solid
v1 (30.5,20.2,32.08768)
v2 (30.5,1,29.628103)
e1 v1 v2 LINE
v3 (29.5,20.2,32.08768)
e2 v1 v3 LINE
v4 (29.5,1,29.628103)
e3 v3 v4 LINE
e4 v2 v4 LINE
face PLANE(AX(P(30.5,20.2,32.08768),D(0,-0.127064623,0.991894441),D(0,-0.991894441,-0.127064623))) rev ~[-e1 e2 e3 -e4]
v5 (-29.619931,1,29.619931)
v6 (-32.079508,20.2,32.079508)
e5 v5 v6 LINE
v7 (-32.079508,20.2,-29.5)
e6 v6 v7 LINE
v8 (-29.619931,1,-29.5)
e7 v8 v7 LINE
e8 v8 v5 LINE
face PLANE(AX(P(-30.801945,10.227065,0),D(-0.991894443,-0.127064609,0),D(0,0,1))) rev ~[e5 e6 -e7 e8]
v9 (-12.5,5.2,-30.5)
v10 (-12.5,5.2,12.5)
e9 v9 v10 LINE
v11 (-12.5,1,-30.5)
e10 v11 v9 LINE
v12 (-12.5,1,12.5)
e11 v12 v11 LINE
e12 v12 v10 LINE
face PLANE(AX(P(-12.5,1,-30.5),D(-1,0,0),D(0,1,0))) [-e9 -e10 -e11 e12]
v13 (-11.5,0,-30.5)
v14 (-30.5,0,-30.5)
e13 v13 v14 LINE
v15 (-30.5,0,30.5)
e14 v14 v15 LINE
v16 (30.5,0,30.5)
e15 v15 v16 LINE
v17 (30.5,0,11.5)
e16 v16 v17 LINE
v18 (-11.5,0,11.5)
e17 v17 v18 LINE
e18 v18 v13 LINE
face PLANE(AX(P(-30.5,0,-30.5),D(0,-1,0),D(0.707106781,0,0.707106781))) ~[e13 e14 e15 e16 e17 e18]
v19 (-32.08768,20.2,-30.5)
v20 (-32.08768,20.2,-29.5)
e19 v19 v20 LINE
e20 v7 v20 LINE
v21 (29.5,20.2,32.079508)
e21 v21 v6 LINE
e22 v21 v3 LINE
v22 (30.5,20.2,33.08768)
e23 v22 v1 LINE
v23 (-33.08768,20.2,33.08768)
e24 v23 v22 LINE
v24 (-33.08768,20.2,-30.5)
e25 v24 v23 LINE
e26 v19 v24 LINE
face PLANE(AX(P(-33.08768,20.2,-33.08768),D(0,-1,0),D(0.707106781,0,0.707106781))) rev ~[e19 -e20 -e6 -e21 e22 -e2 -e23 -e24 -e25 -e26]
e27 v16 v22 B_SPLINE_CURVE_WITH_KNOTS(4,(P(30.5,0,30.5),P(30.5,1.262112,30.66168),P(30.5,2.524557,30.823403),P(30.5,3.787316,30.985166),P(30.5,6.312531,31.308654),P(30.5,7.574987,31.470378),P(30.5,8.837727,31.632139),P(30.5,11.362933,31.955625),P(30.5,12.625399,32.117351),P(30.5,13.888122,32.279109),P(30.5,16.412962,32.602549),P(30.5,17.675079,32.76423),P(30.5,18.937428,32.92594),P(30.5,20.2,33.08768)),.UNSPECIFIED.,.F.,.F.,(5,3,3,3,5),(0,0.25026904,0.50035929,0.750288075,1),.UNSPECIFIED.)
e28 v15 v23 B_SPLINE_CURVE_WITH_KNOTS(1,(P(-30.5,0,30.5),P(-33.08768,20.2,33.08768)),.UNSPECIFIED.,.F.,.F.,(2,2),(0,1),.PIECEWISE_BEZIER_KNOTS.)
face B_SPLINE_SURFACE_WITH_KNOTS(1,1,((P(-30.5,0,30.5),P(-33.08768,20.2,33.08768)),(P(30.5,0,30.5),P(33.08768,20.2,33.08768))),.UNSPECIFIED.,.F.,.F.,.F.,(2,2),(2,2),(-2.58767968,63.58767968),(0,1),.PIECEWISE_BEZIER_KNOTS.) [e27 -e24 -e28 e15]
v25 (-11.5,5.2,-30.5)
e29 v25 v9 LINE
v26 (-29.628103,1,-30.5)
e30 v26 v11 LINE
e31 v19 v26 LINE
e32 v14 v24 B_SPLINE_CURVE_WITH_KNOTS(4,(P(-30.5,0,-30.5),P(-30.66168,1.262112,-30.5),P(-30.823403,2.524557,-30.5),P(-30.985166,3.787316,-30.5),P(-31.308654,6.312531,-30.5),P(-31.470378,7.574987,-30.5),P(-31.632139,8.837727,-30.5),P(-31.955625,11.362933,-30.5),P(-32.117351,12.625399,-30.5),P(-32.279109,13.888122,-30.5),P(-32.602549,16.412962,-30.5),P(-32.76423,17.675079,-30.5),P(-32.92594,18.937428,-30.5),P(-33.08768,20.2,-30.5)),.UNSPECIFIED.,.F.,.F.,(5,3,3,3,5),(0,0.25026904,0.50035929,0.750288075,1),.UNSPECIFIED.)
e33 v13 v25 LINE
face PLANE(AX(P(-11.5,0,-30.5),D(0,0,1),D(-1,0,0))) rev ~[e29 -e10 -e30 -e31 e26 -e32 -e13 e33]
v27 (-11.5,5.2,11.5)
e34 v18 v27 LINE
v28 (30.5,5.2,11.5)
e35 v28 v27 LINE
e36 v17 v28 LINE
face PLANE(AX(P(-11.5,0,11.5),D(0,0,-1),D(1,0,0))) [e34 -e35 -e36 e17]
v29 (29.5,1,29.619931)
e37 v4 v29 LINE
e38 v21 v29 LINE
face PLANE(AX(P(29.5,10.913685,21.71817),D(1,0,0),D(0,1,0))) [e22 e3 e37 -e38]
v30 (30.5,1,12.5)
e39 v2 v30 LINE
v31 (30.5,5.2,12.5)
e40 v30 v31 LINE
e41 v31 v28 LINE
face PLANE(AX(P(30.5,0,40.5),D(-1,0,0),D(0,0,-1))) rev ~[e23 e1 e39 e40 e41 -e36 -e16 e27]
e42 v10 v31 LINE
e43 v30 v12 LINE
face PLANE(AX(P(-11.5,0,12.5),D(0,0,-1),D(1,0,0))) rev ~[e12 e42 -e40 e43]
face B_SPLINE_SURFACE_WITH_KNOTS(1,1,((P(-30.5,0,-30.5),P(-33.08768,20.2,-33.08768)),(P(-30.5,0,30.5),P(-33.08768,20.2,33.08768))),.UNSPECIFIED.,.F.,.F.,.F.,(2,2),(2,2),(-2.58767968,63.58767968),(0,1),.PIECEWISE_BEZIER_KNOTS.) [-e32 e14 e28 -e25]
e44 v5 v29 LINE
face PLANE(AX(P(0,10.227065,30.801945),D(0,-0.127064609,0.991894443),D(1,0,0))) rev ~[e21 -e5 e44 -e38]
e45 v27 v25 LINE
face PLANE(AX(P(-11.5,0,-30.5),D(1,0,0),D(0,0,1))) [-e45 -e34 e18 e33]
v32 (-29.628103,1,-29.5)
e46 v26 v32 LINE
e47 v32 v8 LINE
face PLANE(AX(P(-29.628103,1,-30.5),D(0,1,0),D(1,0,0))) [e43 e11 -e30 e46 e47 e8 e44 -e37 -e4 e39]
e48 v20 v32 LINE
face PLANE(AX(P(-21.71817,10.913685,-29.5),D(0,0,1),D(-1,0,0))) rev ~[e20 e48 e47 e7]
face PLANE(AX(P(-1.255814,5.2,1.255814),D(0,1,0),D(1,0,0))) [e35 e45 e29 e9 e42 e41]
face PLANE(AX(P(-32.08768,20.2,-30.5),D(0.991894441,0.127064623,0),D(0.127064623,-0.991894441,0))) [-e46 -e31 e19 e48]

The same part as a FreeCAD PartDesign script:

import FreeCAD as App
import Part
import Sketcher
Q = App.Units.Quantity


def faces_at(feature, points):
    """Names of the faces that lie closest to the given points."""
    faces = feature.Shape.Faces
    near = lambda p: min(range(len(faces)), key=lambda i: faces[i].distToShape(Part.Vertex(*p))[0])
    return sorted({f"Face{near(p) + 1}" for p in points})

doc = App.newDocument("Part")
body = doc.addObject("PartDesign::Body", "Body")

# Sketch on XZ plane
sketch1 = doc.addObject("Sketcher::SketchObject", "Sketch")
body.addObject(sketch1)
sketch1.AttachmentSupport = (doc.XZ_Plane, [""])
sketch1.MapMode = "FlatFace"
sketch1.addGeometry([
    Part.LineSegment(App.Vector(-30.5, 30.5, 0), App.Vector(-30.5, -30.5, 0)),  # 0
    Part.LineSegment(App.Vector(-30.5, -30.5, 0), App.Vector(-11.5, -30.5, 0)),  # 1
    Part.LineSegment(App.Vector(-11.5, -30.5, 0), App.Vector(-11.5, 11.5, 0)),  # 2
    Part.LineSegment(App.Vector(-11.5, 11.5, 0), App.Vector(30.5, 11.5, 0)),  # 3
    Part.LineSegment(App.Vector(30.5, 11.5, 0), App.Vector(30.5, 30.5, 0)),  # 4
    Part.LineSegment(App.Vector(30.5, 30.5, 0), App.Vector(-30.5, 30.5, 0)),  # 5
], False)
sketch1.addConstraint([
    Sketcher.Constraint("Coincident", 0, 2, 1, 1),
    Sketcher.Constraint("Coincident", 1, 2, 2, 1),
    Sketcher.Constraint("Coincident", 2, 2, 3, 1),
    Sketcher.Constraint("Coincident", 3, 2, 4, 1),
    Sketcher.Constraint("Coincident", 4, 2, 5, 1),
    Sketcher.Constraint("Coincident", 5, 2, 0, 1),
    Sketcher.Constraint("Vertical", 0),
    Sketcher.Constraint("Horizontal", 1),
    Sketcher.Constraint("Vertical", 2),
    Sketcher.Constraint("Horizontal", 3),
    Sketcher.Constraint("Vertical", 4),
    Sketcher.Constraint("Horizontal", 5),
    Sketcher.Constraint("Symmetric", 0, 2, 4, 2, -1, 1),
    Sketcher.Constraint("Equal", 5, 0),
    Sketcher.Constraint("Equal", 3, 2),
    Sketcher.Constraint("DistanceX", 1, 1, 1, 2, Q("19 mm")),
    Sketcher.Constraint("DistanceX", 3, 1, 3, 2, Q("42 mm")),
])
pad1 = doc.addObject("PartDesign::Pad", "Pad")
body.addObject(pad1)
pad1.Profile = sketch1
pad1.Length = 20.2
pad1.Reversed = True
pad1.TaperAngle = 7.3

# Sketch on XZ plane
sketch2 = doc.addObject("Sketcher::SketchObject", "Sketch001")
body.addObject(sketch2)
sketch2.AttachmentSupport = (doc.XZ_Plane, [""])
sketch2.MapMode = "FlatFace"
sketch2.addGeometry([
    Part.LineSegment(App.Vector(-11.5, -30.5, 0), App.Vector(-40.5, -30.5, 0)),  # 0
    Part.LineSegment(App.Vector(-40.5, -30.5, 0), App.Vector(-40.5, -40.5, 0)),  # 1
    Part.LineSegment(App.Vector(-40.5, -40.5, 0), App.Vector(40.5, -40.5, 0)),  # 2
    Part.LineSegment(App.Vector(40.5, -40.5, 0), App.Vector(40.5, 40.5, 0)),  # 3
    Part.LineSegment(App.Vector(40.5, 40.5, 0), App.Vector(30.5, 40.5, 0)),  # 4
    Part.LineSegment(App.Vector(30.5, 40.5, 0), App.Vector(30.5, 11.5, 0)),  # 5
    Part.LineSegment(App.Vector(30.5, 11.5, 0), App.Vector(-11.5, 11.5, 0)),  # 6
    Part.LineSegment(App.Vector(-11.5, 11.5, 0), App.Vector(-11.5, -30.5, 0)),  # 7
], False)
sketch2.addConstraint([
    Sketcher.Constraint("Coincident", 0, 2, 1, 1),
    Sketcher.Constraint("Coincident", 1, 2, 2, 1),
    Sketcher.Constraint("Coincident", 2, 2, 3, 1),
    Sketcher.Constraint("Coincident", 3, 2, 4, 1),
    Sketcher.Constraint("Coincident", 4, 2, 5, 1),
    Sketcher.Constraint("Coincident", 5, 2, 6, 1),
    Sketcher.Constraint("Coincident", 6, 2, 7, 1),
    Sketcher.Constraint("Coincident", 7, 2, 0, 1),
    Sketcher.Constraint("Horizontal", 0),
    Sketcher.Constraint("Vertical", 1),
    Sketcher.Constraint("Horizontal", 2),
    Sketcher.Constraint("Vertical", 3),
    Sketcher.Constraint("Horizontal", 4),
    Sketcher.Constraint("Vertical", 5),
    Sketcher.Constraint("Horizontal", 6),
    Sketcher.Constraint("Vertical", 7),
    Sketcher.Constraint("Symmetric", 1, 2, 3, 2, -1, 1),
    Sketcher.Constraint("Equal", 4, 1),
    Sketcher.Constraint("Equal", 2, 3),
    Sketcher.Constraint("Equal", 0, 5),
    Sketcher.Constraint("DistanceX", 0, 2, 0, 1, Q("29 mm")),
    Sketcher.Constraint("DistanceX", 2, 1, 2, 2, Q("81 mm")),
    Sketcher.Constraint("DistanceX", 4, 2, 4, 1, Q("10 mm")),
])
pocket1 = doc.addObject("PartDesign::Pocket", "Pocket")
body.addObject(pocket1)
pocket1.Profile = sketch2
pocket1.Length = 20.2
doc.recompute()

thickness = doc.addObject("PartDesign::Thickness", "Thickness")
body.addObject(thickness)
thickness.Base = (pocket1, faces_at(pocket1, [(-11.794, 20.2, 11.794)]))
thickness.Value = 1
thickness.Reversed = True
thickness.Join = "Intersection"

# Sketch on XY plane
sketch3 = doc.addObject("Sketcher::SketchObject", "Sketch002")
body.addObject(sketch3)
sketch3.AttachmentSupport = (doc.XY_Plane, [""])
sketch3.MapMode = "FlatFace"
sketch3.AttachmentOffset = App.Placement(App.Vector(0, 0, -30.5), App.Rotation())
sketch3.addGeometry([
    Part.LineSegment(App.Vector(-29.628103, 1, 0), App.Vector(-32.08768, 20.2, 0)),
    Part.LineSegment(App.Vector(-32.08768, 20.2, 0), App.Vector(-12.5, 20.2, 0)),
    Part.LineSegment(App.Vector(-12.5, 20.2, 0), App.Vector(-12.5, 1, 0)),
    Part.LineSegment(App.Vector(-12.5, 1, 0), App.Vector(-29.628103, 1, 0)),
], False)
sketch3.addConstraint([
    Sketcher.Constraint("Coincident", 0, 2, 1, 1),
    Sketcher.Constraint("Coincident", 1, 2, 2, 1),
    Sketcher.Constraint("Coincident", 2, 2, 3, 1),
    Sketcher.Constraint("Coincident", 3, 2, 0, 1),
    Sketcher.Constraint("Horizontal", 1),
    Sketcher.Constraint("Vertical", 2),
    Sketcher.Constraint("Horizontal", 3),
    Sketcher.Constraint("DistanceY", 2, 2, 2, 1, Q("19.2 mm")),
    Sketcher.Constraint("DistanceY", -1, 1, 2, 2, Q("1 mm")),
    Sketcher.Constraint("Angle", 0, Q("97.300001 deg")),
    Sketcher.Constraint("DistanceX", 1, 2, -1, 1, Q("12.5 mm")),
    Sketcher.Constraint("DistanceX", 1, 1, 1, 2, Q("19.58768 mm")),
])
pocket2 = doc.addObject("PartDesign::Pocket", "Pocket001")
body.addObject(pocket2)
pocket2.Profile = sketch3
pocket2.Length = 1
pocket2.Reversed = True

# Sketch on YZ plane
sketch4 = doc.addObject("Sketcher::SketchObject", "Sketch003")
body.addObject(sketch4)
sketch4.AttachmentSupport = (doc.YZ_Plane, [""])
sketch4.MapMode = "FlatFace"
sketch4.AttachmentOffset = App.Placement(App.Vector(0, 0, 30.5), App.Rotation())
sketch4.addGeometry([
    Part.LineSegment(App.Vector(20.2, 32.08768, 0), App.Vector(1, 29.628103, 0)),
    Part.LineSegment(App.Vector(1, 29.628103, 0), App.Vector(1, 12.5, 0)),
    Part.LineSegment(App.Vector(1, 12.5, 0), App.Vector(20.2, 12.5, 0)),
    Part.LineSegment(App.Vector(20.2, 12.5, 0), App.Vector(20.2, 32.08768, 0)),
], False)
sketch4.addConstraint([
    Sketcher.Constraint("Coincident", 0, 2, 1, 1),
    Sketcher.Constraint("Coincident", 1, 2, 2, 1),
    Sketcher.Constraint("Coincident", 2, 2, 3, 1),
    Sketcher.Constraint("Coincident", 3, 2, 0, 1),
    Sketcher.Constraint("Vertical", 1),
    Sketcher.Constraint("Horizontal", 2),
    Sketcher.Constraint("Vertical", 3),
    Sketcher.Constraint("DistanceX", 2, 1, 2, 2, Q("19.2 mm")),
    Sketcher.Constraint("DistanceX", -1, 1, 0, 2, Q("1 mm")),
    Sketcher.Constraint("Angle", 0, Q("-172.699999 deg")),
    Sketcher.Constraint("DistanceY", -1, 1, 1, 2, Q("12.5 mm")),
    Sketcher.Constraint("DistanceY", 3, 1, 3, 2, Q("19.58768 mm")),
])
pocket3 = doc.addObject("PartDesign::Pocket", "Pocket002")
body.addObject(pocket3)
pocket3.Profile = sketch4
pocket3.Length = 1

# Sketch on XZ plane
sketch5 = doc.addObject("Sketcher::SketchObject", "Sketch004")
body.addObject(sketch5)
sketch5.AttachmentSupport = (doc.XZ_Plane, [""])
sketch5.MapMode = "FlatFace"
sketch5.AttachmentOffset = App.Placement(App.Vector(0, 0, -20.2), App.Rotation())
sketch5.addGeometry([
    Part.LineSegment(App.Vector(30.5, 12.5, 0), App.Vector(30.5, 11.5, 0)),  # 0
    Part.LineSegment(App.Vector(30.5, 11.5, 0), App.Vector(-11.5, 11.5, 0)),  # 1
    Part.LineSegment(App.Vector(-11.5, 11.5, 0), App.Vector(-11.5, -30.5, 0)),  # 2
    Part.LineSegment(App.Vector(-11.5, -30.5, 0), App.Vector(-12.5, -30.5, 0)),  # 3
    Part.LineSegment(App.Vector(-12.5, -30.5, 0), App.Vector(-12.5, 12.5, 0)),  # 4
    Part.LineSegment(App.Vector(-12.5, 12.5, 0), App.Vector(30.5, 12.5, 0)),  # 5
], False)
sketch5.addConstraint([
    Sketcher.Constraint("Coincident", 0, 2, 1, 1),
    Sketcher.Constraint("Coincident", 1, 2, 2, 1),
    Sketcher.Constraint("Coincident", 2, 2, 3, 1),
    Sketcher.Constraint("Coincident", 3, 2, 4, 1),
    Sketcher.Constraint("Coincident", 4, 2, 5, 1),
    Sketcher.Constraint("Coincident", 5, 2, 0, 1),
    Sketcher.Constraint("Vertical", 0),
    Sketcher.Constraint("Horizontal", 1),
    Sketcher.Constraint("Vertical", 2),
    Sketcher.Constraint("Horizontal", 3),
    Sketcher.Constraint("Vertical", 4),
    Sketcher.Constraint("Horizontal", 5),
    Sketcher.Constraint("Equal", 3, 0),
    Sketcher.Constraint("Equal", 1, 2),
    Sketcher.Constraint("DistanceX", 1, 2, 1, 1, Q("42 mm")),
    Sketcher.Constraint("DistanceX", 3, 2, 3, 1, Q("1 mm")),
    Sketcher.Constraint("DistanceX", -1, 1, 0, 2, Q("30.5 mm")),
    Sketcher.Constraint("DistanceY", -1, 1, 0, 2, Q("11.5 mm")),
])
pocket4 = doc.addObject("PartDesign::Pocket", "Pocket003")
body.addObject(pocket4)
pocket4.Profile = sketch5
pocket4.Length = 15
pocket4.Reversed = True

doc.recompute()
